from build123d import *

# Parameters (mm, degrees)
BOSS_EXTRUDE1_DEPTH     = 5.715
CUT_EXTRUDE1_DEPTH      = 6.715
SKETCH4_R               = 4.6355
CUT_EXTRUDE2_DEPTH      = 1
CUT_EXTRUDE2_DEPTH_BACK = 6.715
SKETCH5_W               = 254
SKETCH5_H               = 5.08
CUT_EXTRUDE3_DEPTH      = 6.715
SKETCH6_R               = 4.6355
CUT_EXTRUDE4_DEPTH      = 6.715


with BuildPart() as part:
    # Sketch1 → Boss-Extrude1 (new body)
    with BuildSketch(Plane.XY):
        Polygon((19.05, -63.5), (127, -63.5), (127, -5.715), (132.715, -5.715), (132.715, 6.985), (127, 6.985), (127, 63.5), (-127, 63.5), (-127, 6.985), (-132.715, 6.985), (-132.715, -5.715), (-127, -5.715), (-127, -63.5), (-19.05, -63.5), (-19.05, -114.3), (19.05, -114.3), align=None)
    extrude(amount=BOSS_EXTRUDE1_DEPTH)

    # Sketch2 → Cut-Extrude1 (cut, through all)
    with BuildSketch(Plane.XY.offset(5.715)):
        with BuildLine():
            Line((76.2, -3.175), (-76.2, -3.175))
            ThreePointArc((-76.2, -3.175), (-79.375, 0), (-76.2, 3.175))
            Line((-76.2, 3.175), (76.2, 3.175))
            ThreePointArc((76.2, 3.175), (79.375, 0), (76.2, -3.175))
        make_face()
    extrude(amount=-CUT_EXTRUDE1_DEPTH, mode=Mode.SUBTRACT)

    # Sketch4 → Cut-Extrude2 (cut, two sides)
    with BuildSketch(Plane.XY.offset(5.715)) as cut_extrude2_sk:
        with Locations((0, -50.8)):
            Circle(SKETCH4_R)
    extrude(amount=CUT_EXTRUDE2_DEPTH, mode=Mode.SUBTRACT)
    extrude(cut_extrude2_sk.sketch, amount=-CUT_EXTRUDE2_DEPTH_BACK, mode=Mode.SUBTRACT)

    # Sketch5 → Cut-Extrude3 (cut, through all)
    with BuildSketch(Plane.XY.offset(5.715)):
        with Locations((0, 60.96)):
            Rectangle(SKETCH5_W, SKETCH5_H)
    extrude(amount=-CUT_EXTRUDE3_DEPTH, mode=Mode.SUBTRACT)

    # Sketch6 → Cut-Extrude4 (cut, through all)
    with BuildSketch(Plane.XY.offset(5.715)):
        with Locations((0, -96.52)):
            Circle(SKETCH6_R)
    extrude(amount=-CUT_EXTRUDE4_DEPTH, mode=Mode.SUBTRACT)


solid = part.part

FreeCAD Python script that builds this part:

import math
import FreeCAD as App
import Part
import Sketcher
from FreeCAD import Vector
Q = App.Units.Quantity

doc = App.newDocument("Part")
body = doc.addObject("PartDesign::Body", "Body")

sketch1 = doc.addObject("Sketcher::SketchObject", "Sketch")
body.addObject(sketch1)
sketch1.AttachmentSupport = (doc.XY_Plane, [""])
sketch1.MapMode = "FlatFace"
sketch1.addGeometry([
    Part.LineSegment(Vector(19, -64, 0), Vector(127, -64, 0)),
    Part.LineSegment(Vector(127, -64, 0), Vector(127, -6, 0)),
    Part.LineSegment(Vector(127, -6, 0), Vector(133, -6, 0)),
    Part.LineSegment(Vector(133, -6, 0), Vector(133, 7, 0)),
    Part.LineSegment(Vector(133, 7, 0), Vector(127, 7, 0)),
    Part.LineSegment(Vector(127, 7, 0), Vector(127, 64, 0)),
    Part.LineSegment(Vector(127, 64, 0), Vector(-127, 64, 0)),
    Part.LineSegment(Vector(-127, 64, 0), Vector(-127, 7, 0)),
    Part.LineSegment(Vector(-127, 7, 0), Vector(-133, 7, 0)),
    Part.LineSegment(Vector(-133, 7, 0), Vector(-133, -6, 0)),
    Part.LineSegment(Vector(-133, -6, 0), Vector(-127, -6, 0)),
    Part.LineSegment(Vector(-127, -6, 0), Vector(-127, -64, 0)),
    Part.LineSegment(Vector(-127, -64, 0), Vector(-19, -64, 0)),
    Part.LineSegment(Vector(-19, -64, 0), Vector(-19, -114, 0)),
    Part.LineSegment(Vector(-19, -114, 0), Vector(19, -114, 0)),
    Part.LineSegment(Vector(19, -114, 0), Vector(19, -64, 0)),
], False)
sketch1.addConstraint([
    Sketcher.Constraint("Coincident", 0, 2, 1, 1),
    Sketcher.Constraint("Coincident", 1, 2, 2, 1),
    Sketcher.Constraint("Coincident", 2, 2, 3, 1),
    Sketcher.Constraint("Coincident", 3, 2, 4, 1),
    Sketcher.Constraint("Coincident", 4, 2, 5, 1),
    Sketcher.Constraint("Coincident", 5, 2, 6, 1),
    Sketcher.Constraint("Coincident", 6, 2, 7, 1),
    Sketcher.Constraint("Coincident", 7, 2, 8, 1),
    Sketcher.Constraint("Coincident", 8, 2, 9, 1),
    Sketcher.Constraint("Coincident", 9, 2, 10, 1),
    Sketcher.Constraint("Coincident", 10, 2, 11, 1),
    Sketcher.Constraint("Coincident", 11, 2, 12, 1),
    Sketcher.Constraint("Coincident", 12, 2, 13, 1),
    Sketcher.Constraint("Coincident", 13, 2, 14, 1),
    Sketcher.Constraint("Coincident", 14, 2, 15, 1),
    Sketcher.Constraint("Coincident", 15, 2, 0, 1),
    Sketcher.Constraint("Horizontal", 0),
    Sketcher.Constraint("Vertical", 1),
    Sketcher.Constraint("Horizontal", 2),
    Sketcher.Constraint("Vertical", 3),
    Sketcher.Constraint("Horizontal", 4),
    Sketcher.Constraint("Vertical", 5),
    Sketcher.Constraint("Horizontal", 6),
    Sketcher.Constraint("Vertical", 7),
    Sketcher.Constraint("Horizontal", 8),
    Sketcher.Constraint("Vertical", 9),
    Sketcher.Constraint("Horizontal", 10),
    Sketcher.Constraint("Vertical", 11),
    Sketcher.Constraint("Horizontal", 12),
    Sketcher.Constraint("Vertical", 13),
    Sketcher.Constraint("Horizontal", 14),
    Sketcher.Constraint("Vertical", 15),
    Sketcher.Constraint("Symmetric", 0, 2, 6, 2, -1, 1),
    Sketcher.Constraint("Symmetric", 5, 2, 11, 2, -1, 1),
    Sketcher.Constraint("Symmetric", 4, 2, 7, 2, -2),
    Sketcher.Constraint("Symmetric", 2, 2, 9, 2, -2),
    Sketcher.Constraint("Equal", 0, 12),
    Sketcher.Constraint("DistanceX", 6, 2, 6, 1, Q("10 in")),
    Sketcher.Constraint("DistanceY", 13, 2, 13, 1, Q("2 in")),
    Sketcher.Constraint("DistanceX", 14, 1, 14, 2, Q("1.5 in")),
    Sketcher.Constraint("DistanceY", 3, 1, 3, 2, Q("0.5 in")),
    Sketcher.Constraint("DistanceY", 0, 2, 5, 2, Q("5 in")),
    Sketcher.Constraint("DistanceX", 2, 1, 2, 2, Q("0.225 in")),
    Sketcher.Constraint("DistanceY", 1, 1, 1, 2, Q("2.275 in")),
])
pad1 = doc.addObject("PartDesign::Pad", "Pad")
body.addObject(pad1)
pad1.Profile = sketch1
pad1.Length = Q("0.225 in")

sketch2 = doc.addObject("Sketcher::SketchObject", "Sketch001")
body.addObject(sketch2)
sketch2.AttachmentSupport = (doc.XY_Plane, [""])
sketch2.MapMode = "FlatFace"
sketch2.AttachmentOffset = App.Placement(Vector(0, 0, 0.225 * 25.4), App.Rotation())
sketch2.addGeometry([
    Part.LineSegment(Vector(-76.2, -3.2, 0), Vector(76.2, -3.2, 0)),
    Part.ArcOfCircle(Part.Circle(Vector(76.2, 0, 0), Vector(0, 0, 1), 3.2), math.radians(-90), math.radians(90)),
    Part.LineSegment(Vector(76.2, 3.2, 0), Vector(-76.2, 3.2, 0)),
    Part.ArcOfCircle(Part.Circle(Vector(-76.2, 0, 0), Vector(0, 0, 1), 3.2), math.radians(90), math.radians(270)),
], False)
sketch2.addConstraint([
    Sketcher.Constraint("Tangent", 0, 2, 1, 1),
    Sketcher.Constraint("Tangent", 1, 2, 2, 1),
    Sketcher.Constraint("Tangent", 2, 2, 3, 1),
    Sketcher.Constraint("Tangent", 3, 2, 0, 1),
    Sketcher.Constraint("Horizontal", 0),
    Sketcher.Constraint("Horizontal", 2),
    Sketcher.Constraint("Symmetric", 1, 3, 3, 3, -1, 1),
    Sketcher.Constraint("DistanceX", 0, 1, 0, 2, Q("6 in")),
    Sketcher.Constraint("Radius", 1, Q("0.125 in")),
])
pocket1 = doc.addObject("PartDesign::Pocket", "Pocket")
body.addObject(pocket1)
pocket1.Profile = sketch2
pocket1.Type = "ThroughAll"

sketch3 = doc.addObject("Sketcher::SketchObject", "Sketch002")
body.addObject(sketch3)
sketch3.AttachmentSupport = (doc.XY_Plane, [""])
sketch3.MapMode = "FlatFace"
sketch3.AttachmentOffset = App.Placement(Vector(0, 0, 0.225 * 25.4), App.Rotation())
sketch3.addGeometry(Part.Circle(Vector(0, -50.8, 0), Vector(0, 0, 1), 4.6), False)
sketch3.addConstraint([
    Sketcher.Constraint("PointOnObject", 0, 3, -2),
    Sketcher.Constraint("Diameter", 0, Q("0.365 in")),
    Sketcher.Constraint("DistanceY", 0, 3, -1, 1, Q("2 in")),
])
pocket2 = doc.addObject("PartDesign::Pocket", "Pocket001")
body.addObject(pocket2)
pocket2.Profile = sketch3
pocket2.Type = "ThroughAll"
pocket2.Midplane = True

sketch4 = doc.addObject("Sketcher::SketchObject", "Sketch003")
body.addObject(sketch4)
sketch4.AttachmentSupport = (doc.XY_Plane, [""])
sketch4.MapMode = "FlatFace"
sketch4.AttachmentOffset = App.Placement(Vector(0, 0, 0.225 * 25.4), App.Rotation())
sketch4.addGeometry([
    Part.LineSegment(Vector(-127, 64, 0), Vector(-127, 58, 0)),
    Part.LineSegment(Vector(-127, 58, 0), Vector(127, 58, 0)),
    Part.LineSegment(Vector(127, 58, 0), Vector(127, 64, 0)),
    Part.LineSegment(Vector(127, 64, 0), Vector(-127, 64, 0)),
], False)
sketch4.addConstraint([
    Sketcher.Constraint("Coincident", 0, 2, 1, 1),
    Sketcher.Constraint("Coincident", 1, 2, 2, 1),
    Sketcher.Constraint("Coincident", 2, 2, 3, 1),
    Sketcher.Constraint("Coincident", 3, 2, 0, 1),
    Sketcher.Constraint("Vertical", 0),
    Sketcher.Constraint("Horizontal", 1),
    Sketcher.Constraint("Vertical", 2),
    Sketcher.Constraint("Horizontal", 3),
    Sketcher.Constraint("DistanceX", 1, 1, 1, 2, Q("10 in")),
    Sketcher.Constraint("DistanceY", 0, 2, 0, 1, Q("0.2 in")),
    Sketcher.Constraint("DistanceX", 0, 2, -1, 1, Q("5 in")),
    Sketcher.Constraint("DistanceY", -1, 1, 0, 2, Q("2.3 in")),
])
pocket3 = doc.addObject("PartDesign::Pocket", "Pocket002")
body.addObject(pocket3)
pocket3.Profile = sketch4
pocket3.Type = "ThroughAll"

sketch5 = doc.addObject("Sketcher::SketchObject", "Sketch004")
body.addObject(sketch5)
sketch5.AttachmentSupport = (doc.XY_Plane, [""])
sketch5.MapMode = "FlatFace"
sketch5.AttachmentOffset = App.Placement(Vector(0, 0, 0.225 * 25.4), App.Rotation())
sketch5.addGeometry(Part.Circle(Vector(0, -96.5, 0), Vector(0, 0, 1), 4.6), False)
sketch5.addConstraint([
    Sketcher.Constraint("PointOnObject", 0, 3, -2),
    Sketcher.Constraint("Diameter", 0, Q("0.365 in")),
    Sketcher.Constraint("DistanceY", 0, 3, -1, 1, Q("3.8 in")),
])
pocket4 = doc.addObject("PartDesign::Pocket", "Pocket003")
body.addObject(pocket4)
pocket4.Profile = sketch5
pocket4.Type = "ThroughAll"

doc.recompute()
